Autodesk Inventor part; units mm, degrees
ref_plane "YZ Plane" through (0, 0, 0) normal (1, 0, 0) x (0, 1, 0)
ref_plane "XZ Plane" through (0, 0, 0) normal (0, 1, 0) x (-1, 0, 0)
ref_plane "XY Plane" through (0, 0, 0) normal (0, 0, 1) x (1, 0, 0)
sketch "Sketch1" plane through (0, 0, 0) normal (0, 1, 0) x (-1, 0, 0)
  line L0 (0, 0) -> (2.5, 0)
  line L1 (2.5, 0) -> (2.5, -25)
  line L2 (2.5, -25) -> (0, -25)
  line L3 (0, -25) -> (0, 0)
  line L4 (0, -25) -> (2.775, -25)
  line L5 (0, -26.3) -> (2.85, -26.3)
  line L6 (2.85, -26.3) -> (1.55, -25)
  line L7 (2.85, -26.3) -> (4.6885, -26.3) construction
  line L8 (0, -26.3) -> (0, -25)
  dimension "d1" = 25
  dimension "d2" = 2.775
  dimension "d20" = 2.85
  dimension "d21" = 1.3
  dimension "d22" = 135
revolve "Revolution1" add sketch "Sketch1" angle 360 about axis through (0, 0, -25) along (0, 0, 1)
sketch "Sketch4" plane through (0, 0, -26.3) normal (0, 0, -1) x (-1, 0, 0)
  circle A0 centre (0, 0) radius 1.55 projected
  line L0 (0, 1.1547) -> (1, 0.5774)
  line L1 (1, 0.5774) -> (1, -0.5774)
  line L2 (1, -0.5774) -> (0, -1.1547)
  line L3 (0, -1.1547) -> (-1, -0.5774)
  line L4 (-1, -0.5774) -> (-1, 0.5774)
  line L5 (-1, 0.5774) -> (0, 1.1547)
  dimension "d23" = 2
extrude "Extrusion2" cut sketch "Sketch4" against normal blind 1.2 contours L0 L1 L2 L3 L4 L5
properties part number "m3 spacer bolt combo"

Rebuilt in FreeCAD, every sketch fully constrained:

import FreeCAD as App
import Part
import Sketcher
Q = App.Units.Quantity

doc = App.newDocument("Part")
body = doc.addObject("PartDesign::Body", "Body")

# Sketch on XZ plane
sketch1 = body.newObject("Sketcher::SketchObject", "Sketch")
sketch1.AttachmentSupport = (doc.getObject("XZ_Plane"), [""])
sketch1.MapMode = "FlatFace"
sketch1.addGeometry([
    Part.LineSegment(App.Vector(-2.5, 0, 0), App.Vector(0, 0, 0)),  # 0
    Part.LineSegment(App.Vector(0, 0, 0), App.Vector(0, -26.3, 0)),  # 1
    Part.LineSegment(App.Vector(0, -26.3, 0), App.Vector(-2.9, -26.3, 0)),  # 2
    Part.LineSegment(App.Vector(-2.9, -26.3, 0), App.Vector(-1.6, -25, 0)),  # 3
    Part.LineSegment(App.Vector(-1.6, -25, 0), App.Vector(-2.5, -25, 0)),  # 4
    Part.LineSegment(App.Vector(-2.5, -25, 0), App.Vector(-2.5, 0, 0)),  # 5
], False)
sketch1.addConstraint([
    Sketcher.Constraint("Coincident", 0, 2, 1, 1),
    Sketcher.Constraint("Coincident", 1, 2, 2, 1),
    Sketcher.Constraint("Coincident", 2, 2, 3, 1),
    Sketcher.Constraint("Coincident", 3, 2, 4, 1),
    Sketcher.Constraint("Coincident", 4, 2, 5, 1),
    Sketcher.Constraint("Coincident", 5, 2, 0, 1),
    Sketcher.Constraint("Horizontal", 0),
    Sketcher.Constraint("Vertical", 1),
    Sketcher.Constraint("Horizontal", 2),
    Sketcher.Constraint("Horizontal", 4),
    Sketcher.Constraint("Vertical", 5),
    Sketcher.Constraint("Coincident", 0, 2, -1, 1),
    Sketcher.Constraint("DistanceY", 5, 1, 5, 2, Q("25 mm")),
    Sketcher.Constraint("DistanceX", 2, 2, 2, 1, Q("2.85 mm")),
    Sketcher.Constraint("DistanceX", 2, 2, 3, 2, Q("1.3 mm")),
    Sketcher.Constraint("DistanceY", 2, 2, 3, 2, Q("1.3 mm")),
    Sketcher.Constraint("DistanceX", 0, 1, 0, 2, Q("2.5 mm")),
])
revolution = body.newObject("PartDesign::Revolution", "Revolution")
revolution.Profile = sketch1
revolution.ReferenceAxis = (sketch1, ["V_Axis"])
revolution.Angle = 360

# Sketch on XY plane
sketch2 = body.newObject("Sketcher::SketchObject", "Sketch001")
sketch2.AttachmentSupport = (doc.getObject("XY_Plane"), [""])
sketch2.MapMode = "FlatFace"
sketch2.AttachmentOffset = App.Placement(App.Vector(0, 0, -26.3), App.Rotation())
sketch2.addGeometry([
    Part.LineSegment(App.Vector(-1, 0.6, 0), App.Vector(0, 1.2, 0)),  # 0
    Part.LineSegment(App.Vector(0, 1.2, 0), App.Vector(1, 0.6, 0)),  # 1
    Part.LineSegment(App.Vector(1, 0.6, 0), App.Vector(1, -0.6, 0)),  # 2
    Part.LineSegment(App.Vector(1, -0.6, 0), App.Vector(0, -1.2, 0)),  # 3
    Part.LineSegment(App.Vector(0, -1.2, 0), App.Vector(-1, -0.6, 0)),  # 4
    Part.LineSegment(App.Vector(-1, -0.6, 0), App.Vector(-1, 0.6, 0)),  # 5
], False)
sketch2.addConstraint([
    Sketcher.Constraint("Coincident", 0, 2, 1, 1),
    Sketcher.Constraint("Coincident", 1, 2, 2, 1),
    Sketcher.Constraint("Coincident", 2, 2, 3, 1),
    Sketcher.Constraint("Coincident", 3, 2, 4, 1),
    Sketcher.Constraint("Coincident", 4, 2, 5, 1),
    Sketcher.Constraint("Coincident", 5, 2, 0, 1),
    Sketcher.Constraint("Vertical", 2),
    Sketcher.Constraint("Vertical", 5),
    Sketcher.Constraint("Symmetric", 0, 2, 3, 2, -1, 1),
    Sketcher.Constraint("Symmetric", 1, 2, 4, 2, -1, 1),
    Sketcher.Constraint("PointOnObject", 0, 2, -2),
    Sketcher.Constraint("Parallel", 0, 3),
    Sketcher.Constraint("Horizontal", 2, 2, 4, 2),
    Sketcher.Constraint("DistanceX", 4, 2, 2, 2, Q("2 mm")),
    Sketcher.Constraint("DistanceY", 2, 2, 2, 1, Q("1.1548 mm")),
    Sketcher.Constraint("DistanceY", 2, 2, 0, 2, Q("1.732 mm")),
])
pocket1 = body.newObject("PartDesign::Pocket", "Pocket")
pocket1.Profile = sketch2
pocket1.Length = 1.2
pocket1.Reversed = True

doc.recompute()
